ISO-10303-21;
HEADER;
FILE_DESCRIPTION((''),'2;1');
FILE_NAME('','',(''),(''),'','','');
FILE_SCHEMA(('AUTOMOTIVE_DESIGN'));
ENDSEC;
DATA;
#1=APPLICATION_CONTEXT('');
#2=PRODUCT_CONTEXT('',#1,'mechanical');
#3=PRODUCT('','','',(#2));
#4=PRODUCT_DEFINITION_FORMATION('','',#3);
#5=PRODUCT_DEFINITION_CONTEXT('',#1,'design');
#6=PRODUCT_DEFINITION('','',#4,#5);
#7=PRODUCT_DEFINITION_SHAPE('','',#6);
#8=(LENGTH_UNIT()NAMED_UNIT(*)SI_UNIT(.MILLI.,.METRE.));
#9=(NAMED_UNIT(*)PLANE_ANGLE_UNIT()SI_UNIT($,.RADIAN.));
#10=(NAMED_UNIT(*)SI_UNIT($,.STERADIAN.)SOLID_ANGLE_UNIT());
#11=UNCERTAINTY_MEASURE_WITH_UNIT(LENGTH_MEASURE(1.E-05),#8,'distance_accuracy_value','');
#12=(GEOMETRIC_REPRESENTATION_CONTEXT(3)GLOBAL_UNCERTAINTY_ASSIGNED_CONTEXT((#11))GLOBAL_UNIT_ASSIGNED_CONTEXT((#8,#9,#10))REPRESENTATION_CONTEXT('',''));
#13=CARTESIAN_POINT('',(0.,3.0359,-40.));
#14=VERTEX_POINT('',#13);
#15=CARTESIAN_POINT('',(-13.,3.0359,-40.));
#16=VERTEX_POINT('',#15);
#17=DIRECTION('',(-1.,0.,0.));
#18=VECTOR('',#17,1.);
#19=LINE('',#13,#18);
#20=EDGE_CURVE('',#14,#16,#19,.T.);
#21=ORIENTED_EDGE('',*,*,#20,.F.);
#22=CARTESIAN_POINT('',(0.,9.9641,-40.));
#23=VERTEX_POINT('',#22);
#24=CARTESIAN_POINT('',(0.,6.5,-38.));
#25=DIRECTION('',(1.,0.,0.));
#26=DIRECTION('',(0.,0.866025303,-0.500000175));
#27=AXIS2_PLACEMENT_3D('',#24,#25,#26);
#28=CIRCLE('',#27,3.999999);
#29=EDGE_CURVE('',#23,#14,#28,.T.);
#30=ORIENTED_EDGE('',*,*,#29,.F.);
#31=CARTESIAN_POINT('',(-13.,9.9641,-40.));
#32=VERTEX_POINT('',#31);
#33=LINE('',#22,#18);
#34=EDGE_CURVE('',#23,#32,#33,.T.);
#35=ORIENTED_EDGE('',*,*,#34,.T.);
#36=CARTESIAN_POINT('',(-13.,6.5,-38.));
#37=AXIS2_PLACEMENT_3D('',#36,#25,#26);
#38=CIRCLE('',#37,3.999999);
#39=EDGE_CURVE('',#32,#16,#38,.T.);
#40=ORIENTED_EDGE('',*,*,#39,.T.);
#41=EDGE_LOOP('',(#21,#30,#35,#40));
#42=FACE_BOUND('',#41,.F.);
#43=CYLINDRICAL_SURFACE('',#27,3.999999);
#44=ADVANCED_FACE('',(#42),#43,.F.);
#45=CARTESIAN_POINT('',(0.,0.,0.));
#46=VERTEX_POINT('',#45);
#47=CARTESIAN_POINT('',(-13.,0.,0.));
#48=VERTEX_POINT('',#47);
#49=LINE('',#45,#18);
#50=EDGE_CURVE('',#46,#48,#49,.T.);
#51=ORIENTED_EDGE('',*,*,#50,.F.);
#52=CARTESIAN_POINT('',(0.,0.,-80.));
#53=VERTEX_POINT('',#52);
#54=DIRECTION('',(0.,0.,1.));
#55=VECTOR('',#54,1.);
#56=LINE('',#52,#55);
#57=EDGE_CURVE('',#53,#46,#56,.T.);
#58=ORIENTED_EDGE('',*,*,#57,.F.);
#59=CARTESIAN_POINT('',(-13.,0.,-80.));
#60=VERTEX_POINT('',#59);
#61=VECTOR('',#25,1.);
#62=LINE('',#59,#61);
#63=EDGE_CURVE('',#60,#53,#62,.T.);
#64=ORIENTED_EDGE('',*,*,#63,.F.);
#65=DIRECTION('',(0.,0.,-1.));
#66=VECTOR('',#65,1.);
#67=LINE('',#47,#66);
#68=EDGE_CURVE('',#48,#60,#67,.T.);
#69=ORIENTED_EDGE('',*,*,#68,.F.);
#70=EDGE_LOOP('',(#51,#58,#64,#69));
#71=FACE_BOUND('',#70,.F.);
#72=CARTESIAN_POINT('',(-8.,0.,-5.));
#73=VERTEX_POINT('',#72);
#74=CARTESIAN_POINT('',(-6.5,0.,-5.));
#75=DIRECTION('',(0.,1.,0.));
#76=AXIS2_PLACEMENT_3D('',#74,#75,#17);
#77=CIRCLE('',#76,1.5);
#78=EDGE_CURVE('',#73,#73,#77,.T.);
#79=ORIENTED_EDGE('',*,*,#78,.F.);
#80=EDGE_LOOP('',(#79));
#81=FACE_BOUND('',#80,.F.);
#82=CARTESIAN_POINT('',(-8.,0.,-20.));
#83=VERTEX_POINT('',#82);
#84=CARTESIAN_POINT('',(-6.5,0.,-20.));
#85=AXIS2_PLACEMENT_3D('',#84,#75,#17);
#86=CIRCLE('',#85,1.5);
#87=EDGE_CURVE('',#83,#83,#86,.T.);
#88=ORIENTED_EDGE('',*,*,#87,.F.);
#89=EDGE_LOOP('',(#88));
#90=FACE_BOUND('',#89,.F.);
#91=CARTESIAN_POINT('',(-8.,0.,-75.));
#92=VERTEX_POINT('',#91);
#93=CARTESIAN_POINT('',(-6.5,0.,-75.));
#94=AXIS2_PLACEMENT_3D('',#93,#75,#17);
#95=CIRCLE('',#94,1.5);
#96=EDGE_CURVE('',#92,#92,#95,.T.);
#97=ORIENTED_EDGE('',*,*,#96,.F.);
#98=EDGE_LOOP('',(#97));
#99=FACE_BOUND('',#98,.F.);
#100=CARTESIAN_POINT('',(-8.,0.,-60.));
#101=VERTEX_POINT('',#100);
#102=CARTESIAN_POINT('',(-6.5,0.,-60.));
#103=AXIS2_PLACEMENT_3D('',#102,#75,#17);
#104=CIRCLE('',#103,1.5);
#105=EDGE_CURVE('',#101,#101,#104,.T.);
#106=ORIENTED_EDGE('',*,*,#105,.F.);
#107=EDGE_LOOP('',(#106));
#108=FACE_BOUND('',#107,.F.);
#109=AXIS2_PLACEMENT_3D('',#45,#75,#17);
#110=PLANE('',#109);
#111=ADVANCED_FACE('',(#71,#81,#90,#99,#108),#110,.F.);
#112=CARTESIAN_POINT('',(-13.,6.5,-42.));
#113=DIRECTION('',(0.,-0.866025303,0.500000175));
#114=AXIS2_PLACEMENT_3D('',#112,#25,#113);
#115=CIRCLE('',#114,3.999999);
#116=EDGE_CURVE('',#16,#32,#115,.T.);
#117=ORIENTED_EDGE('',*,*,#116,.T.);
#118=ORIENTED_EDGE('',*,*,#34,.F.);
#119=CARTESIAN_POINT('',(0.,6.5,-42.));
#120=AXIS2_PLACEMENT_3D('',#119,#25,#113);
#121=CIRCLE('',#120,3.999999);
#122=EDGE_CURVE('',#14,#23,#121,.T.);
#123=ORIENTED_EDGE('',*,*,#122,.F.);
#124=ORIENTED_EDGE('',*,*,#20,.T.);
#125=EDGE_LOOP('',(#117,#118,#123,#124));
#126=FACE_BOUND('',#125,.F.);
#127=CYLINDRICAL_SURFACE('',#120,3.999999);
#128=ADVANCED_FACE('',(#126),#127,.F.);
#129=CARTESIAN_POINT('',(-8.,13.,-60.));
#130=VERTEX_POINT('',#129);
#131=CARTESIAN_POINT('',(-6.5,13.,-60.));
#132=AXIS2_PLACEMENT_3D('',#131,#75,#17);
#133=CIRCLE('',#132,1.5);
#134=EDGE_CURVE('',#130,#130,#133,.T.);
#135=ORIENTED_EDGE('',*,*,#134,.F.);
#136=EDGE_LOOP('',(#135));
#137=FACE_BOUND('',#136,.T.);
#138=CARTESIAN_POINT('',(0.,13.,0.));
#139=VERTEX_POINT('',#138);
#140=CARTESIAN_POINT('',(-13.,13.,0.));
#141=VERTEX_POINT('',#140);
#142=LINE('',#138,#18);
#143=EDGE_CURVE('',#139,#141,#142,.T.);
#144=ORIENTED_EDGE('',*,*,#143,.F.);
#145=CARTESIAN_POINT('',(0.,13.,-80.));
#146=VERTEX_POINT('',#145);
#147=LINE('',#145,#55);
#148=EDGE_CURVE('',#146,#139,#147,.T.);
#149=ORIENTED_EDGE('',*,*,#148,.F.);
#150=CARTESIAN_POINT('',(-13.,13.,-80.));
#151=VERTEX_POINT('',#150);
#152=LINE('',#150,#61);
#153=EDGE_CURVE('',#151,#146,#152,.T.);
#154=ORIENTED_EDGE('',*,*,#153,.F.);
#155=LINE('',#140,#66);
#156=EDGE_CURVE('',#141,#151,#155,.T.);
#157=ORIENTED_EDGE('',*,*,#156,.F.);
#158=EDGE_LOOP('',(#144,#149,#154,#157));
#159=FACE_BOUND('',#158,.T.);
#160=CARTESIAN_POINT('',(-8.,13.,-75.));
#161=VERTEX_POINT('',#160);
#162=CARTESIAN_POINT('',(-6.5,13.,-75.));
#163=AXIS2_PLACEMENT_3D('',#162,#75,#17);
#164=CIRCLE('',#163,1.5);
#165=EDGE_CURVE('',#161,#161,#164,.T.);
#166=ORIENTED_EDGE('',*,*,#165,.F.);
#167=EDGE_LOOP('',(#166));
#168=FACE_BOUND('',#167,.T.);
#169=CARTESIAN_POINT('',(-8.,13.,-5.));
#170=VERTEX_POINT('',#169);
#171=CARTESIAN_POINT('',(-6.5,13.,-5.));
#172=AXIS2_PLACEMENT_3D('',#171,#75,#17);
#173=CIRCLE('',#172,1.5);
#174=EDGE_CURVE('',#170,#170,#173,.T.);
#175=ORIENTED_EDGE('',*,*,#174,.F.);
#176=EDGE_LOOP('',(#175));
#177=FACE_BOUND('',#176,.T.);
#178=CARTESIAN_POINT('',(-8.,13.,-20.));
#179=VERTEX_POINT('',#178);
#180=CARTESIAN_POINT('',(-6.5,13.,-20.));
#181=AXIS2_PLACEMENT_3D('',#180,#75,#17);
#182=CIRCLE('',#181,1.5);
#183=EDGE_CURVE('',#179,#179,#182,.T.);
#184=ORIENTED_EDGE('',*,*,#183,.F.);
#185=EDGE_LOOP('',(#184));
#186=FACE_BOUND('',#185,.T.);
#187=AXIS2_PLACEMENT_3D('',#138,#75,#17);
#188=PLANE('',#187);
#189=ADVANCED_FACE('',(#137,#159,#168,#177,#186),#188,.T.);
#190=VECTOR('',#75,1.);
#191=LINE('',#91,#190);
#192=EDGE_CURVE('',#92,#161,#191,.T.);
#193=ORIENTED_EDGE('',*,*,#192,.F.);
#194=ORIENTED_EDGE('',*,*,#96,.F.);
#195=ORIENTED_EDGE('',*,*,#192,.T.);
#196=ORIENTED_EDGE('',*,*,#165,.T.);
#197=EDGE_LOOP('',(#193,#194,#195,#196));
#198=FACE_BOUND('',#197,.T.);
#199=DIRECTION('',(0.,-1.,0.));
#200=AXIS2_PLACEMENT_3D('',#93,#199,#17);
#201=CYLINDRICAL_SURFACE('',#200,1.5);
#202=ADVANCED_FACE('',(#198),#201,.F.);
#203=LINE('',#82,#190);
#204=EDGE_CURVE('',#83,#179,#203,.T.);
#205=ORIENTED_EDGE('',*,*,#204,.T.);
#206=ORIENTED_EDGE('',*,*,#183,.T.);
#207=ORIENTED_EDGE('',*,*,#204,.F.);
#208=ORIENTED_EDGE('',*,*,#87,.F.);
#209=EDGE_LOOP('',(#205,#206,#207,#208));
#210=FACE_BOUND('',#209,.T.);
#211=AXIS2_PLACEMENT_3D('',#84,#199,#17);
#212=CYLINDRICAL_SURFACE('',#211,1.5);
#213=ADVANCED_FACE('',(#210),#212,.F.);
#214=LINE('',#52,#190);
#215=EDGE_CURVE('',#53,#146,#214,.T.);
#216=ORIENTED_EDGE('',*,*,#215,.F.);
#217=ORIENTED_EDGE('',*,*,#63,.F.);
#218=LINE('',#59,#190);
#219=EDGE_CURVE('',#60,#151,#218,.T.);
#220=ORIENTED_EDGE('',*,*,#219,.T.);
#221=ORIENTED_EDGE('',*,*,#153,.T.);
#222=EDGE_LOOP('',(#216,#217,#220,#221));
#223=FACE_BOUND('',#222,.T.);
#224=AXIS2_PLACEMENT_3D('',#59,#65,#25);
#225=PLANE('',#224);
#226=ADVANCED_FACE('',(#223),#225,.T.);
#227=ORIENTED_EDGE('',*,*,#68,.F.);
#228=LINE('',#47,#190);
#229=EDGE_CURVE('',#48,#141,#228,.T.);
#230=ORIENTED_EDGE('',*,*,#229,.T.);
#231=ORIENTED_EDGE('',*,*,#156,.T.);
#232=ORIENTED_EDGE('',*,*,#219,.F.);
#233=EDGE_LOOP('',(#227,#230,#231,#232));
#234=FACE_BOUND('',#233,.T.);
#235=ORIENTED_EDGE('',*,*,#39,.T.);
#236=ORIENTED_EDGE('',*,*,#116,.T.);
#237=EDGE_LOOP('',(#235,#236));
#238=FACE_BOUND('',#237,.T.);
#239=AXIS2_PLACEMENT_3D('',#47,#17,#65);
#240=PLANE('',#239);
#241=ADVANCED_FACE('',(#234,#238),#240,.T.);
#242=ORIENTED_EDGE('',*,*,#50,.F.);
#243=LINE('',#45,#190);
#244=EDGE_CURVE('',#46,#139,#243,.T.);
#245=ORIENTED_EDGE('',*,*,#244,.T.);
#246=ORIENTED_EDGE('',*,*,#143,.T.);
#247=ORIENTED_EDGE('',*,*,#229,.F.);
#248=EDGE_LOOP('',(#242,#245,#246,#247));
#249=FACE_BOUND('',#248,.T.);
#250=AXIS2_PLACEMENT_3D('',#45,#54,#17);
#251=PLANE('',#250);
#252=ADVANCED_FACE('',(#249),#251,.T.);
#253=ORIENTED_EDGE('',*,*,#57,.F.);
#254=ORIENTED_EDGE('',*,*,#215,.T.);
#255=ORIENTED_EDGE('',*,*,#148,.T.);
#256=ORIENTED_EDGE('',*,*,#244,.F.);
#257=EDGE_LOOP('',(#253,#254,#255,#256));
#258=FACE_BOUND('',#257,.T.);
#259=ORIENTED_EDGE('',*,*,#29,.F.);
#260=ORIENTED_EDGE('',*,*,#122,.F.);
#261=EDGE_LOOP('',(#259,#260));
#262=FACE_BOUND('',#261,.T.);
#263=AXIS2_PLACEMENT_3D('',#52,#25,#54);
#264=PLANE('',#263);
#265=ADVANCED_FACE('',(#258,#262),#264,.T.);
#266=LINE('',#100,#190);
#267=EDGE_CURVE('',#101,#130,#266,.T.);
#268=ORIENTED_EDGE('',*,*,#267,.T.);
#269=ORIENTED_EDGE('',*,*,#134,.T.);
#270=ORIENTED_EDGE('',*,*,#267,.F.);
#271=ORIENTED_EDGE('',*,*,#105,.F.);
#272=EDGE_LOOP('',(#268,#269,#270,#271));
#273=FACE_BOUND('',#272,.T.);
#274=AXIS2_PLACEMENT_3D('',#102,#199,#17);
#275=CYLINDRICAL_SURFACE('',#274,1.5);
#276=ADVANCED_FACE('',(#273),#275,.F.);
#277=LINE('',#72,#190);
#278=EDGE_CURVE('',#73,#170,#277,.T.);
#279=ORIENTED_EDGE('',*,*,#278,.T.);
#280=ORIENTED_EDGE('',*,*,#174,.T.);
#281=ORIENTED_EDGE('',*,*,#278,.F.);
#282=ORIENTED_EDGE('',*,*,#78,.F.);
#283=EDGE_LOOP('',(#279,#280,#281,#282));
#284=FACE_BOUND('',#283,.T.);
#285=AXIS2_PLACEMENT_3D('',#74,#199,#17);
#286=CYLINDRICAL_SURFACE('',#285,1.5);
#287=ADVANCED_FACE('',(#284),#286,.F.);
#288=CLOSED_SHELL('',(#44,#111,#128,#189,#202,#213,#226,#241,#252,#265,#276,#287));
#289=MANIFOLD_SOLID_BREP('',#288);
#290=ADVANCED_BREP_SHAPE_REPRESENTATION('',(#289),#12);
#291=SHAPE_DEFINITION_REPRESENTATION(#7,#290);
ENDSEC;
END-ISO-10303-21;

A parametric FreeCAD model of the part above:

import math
import FreeCAD as App
import Part
import Sketcher

V = App.Vector
Q = App.Units.Quantity


def add_polygon(sketch, points):
    """Adds a closed chain of lines whose ends are joined by coincident constraints."""
    first, n = sketch.GeometryCount, len(points)
    for a, b in zip(points, points[1:] + points[:1]):
        sketch.addGeometry(Part.LineSegment(App.Vector(*a, 0), App.Vector(*b, 0)), False)
    for i in range(n):
        sketch.addConstraint(Sketcher.Constraint("Coincident", first + i, 2, first + (i + 1) % n, 1))

doc = App.newDocument("Part")
body = doc.addObject("PartDesign::Body", "Body")

# Sketch on XZ plane
sketch1 = body.newObject("Sketcher::SketchObject", "Sketch")
sketch1.AttachmentSupport = (doc.getObject("XZ_Plane"), [""])
sketch1.MapMode = "FlatFace"
add_polygon(sketch1, [(-13, 0), (0, 0), (0, -80), (-13, -80)])  # lines 0-3
sketch1.addGeometry(Part.Circle(V(-6.5, -75, 0), V(0, 0, 1), 1.5), False)  # 4
sketch1.addGeometry(Part.Circle(V(-6.5, -60, 0), V(0, 0, 1), 1.5), False)  # 5
sketch1.addGeometry(Part.Circle(V(-6.5, -20, 0), V(0, 0, 1), 1.5), False)  # 6
sketch1.addGeometry(Part.Circle(V(-6.5, -5, 0), V(0, 0, 1), 1.5), False)  # 7
sketch1.addConstraint([
    Sketcher.Constraint("Horizontal", 0),
    Sketcher.Constraint("Vertical", 1),
    Sketcher.Constraint("Horizontal", 2),
    Sketcher.Constraint("Vertical", 3),
    Sketcher.Constraint("Coincident", 0, 2, -1, 1),
    Sketcher.Constraint("Equal", 4, 5),
    Sketcher.Constraint("Equal", 5, 6),
    Sketcher.Constraint("Equal", 6, 7),
    Sketcher.Constraint("Vertical", 4, 3, 5, 3),
    Sketcher.Constraint("Vertical", 5, 3, 6, 3),
    Sketcher.Constraint("Vertical", 6, 3, 7, 3),
    Sketcher.Constraint("Diameter", 4, Q("3 mm")),
    Sketcher.Constraint("DistanceX", 0, 1, 0, 2, Q("13 mm")),
    Sketcher.Constraint("DistanceY", 1, 2, 1, 1, Q("80 mm")),
    Sketcher.Constraint("DistanceY", 6, 3, -1, 1, Q("20 mm")),
    Sketcher.Constraint("DistanceY", 7, 3, -1, 1, Q("5 mm")),
    Sketcher.Constraint("DistanceY", 1, 2, 4, 3, Q("5 mm")),
    Sketcher.Constraint("DistanceY", 1, 2, 5, 3, Q("20 mm")),
    Sketcher.Constraint("DistanceX", 4, 3, -1, 1, Q("6.5 mm")),
])
pad1 = body.newObject("PartDesign::Pad", "Pad")
pad1.Profile = sketch1
pad1.Length = 13
pad1.Reversed = True

# Sketch on YZ plane
sketch2 = body.newObject("Sketcher::SketchObject", "Sketch001")
sketch2.AttachmentSupport = (doc.getObject("YZ_Plane"), [""])
sketch2.MapMode = "FlatFace"
sketch2.addGeometry([
    Part.ArcOfCircle(Part.Circle(V(6.5, -42, 0), V(0, 0, 1), 4), math.radians(150), math.radians(390)),
    Part.ArcOfCircle(Part.Circle(V(6.5, -38, 0), V(0, 0, 1), 4), math.radians(-30), math.radians(210)),
], False)
sketch2.addConstraint([
    Sketcher.Constraint("Coincident", 0, 1, 1, 2),
    Sketcher.Constraint("Coincident", 1, 1, 0, 2),
    Sketcher.Constraint("Equal", 0, 1),
    Sketcher.Constraint("Horizontal", 0, 1, 1, 1),
    Sketcher.Constraint("Radius", 0, Q("4 mm")),
    Sketcher.Constraint("DistanceY", 0, 3, -1, 1, Q("42 mm")),
    Sketcher.Constraint("DistanceY", 1, 3, -1, 1, Q("38 mm")),
    Sketcher.Constraint("DistanceX", -1, 1, 0, 3, Q("6.5 mm")),
])
pocket1 = body.newObject("PartDesign::Pocket", "Pocket")
pocket1.Profile = sketch2
pocket1.Length = 13

doc.recompute()
